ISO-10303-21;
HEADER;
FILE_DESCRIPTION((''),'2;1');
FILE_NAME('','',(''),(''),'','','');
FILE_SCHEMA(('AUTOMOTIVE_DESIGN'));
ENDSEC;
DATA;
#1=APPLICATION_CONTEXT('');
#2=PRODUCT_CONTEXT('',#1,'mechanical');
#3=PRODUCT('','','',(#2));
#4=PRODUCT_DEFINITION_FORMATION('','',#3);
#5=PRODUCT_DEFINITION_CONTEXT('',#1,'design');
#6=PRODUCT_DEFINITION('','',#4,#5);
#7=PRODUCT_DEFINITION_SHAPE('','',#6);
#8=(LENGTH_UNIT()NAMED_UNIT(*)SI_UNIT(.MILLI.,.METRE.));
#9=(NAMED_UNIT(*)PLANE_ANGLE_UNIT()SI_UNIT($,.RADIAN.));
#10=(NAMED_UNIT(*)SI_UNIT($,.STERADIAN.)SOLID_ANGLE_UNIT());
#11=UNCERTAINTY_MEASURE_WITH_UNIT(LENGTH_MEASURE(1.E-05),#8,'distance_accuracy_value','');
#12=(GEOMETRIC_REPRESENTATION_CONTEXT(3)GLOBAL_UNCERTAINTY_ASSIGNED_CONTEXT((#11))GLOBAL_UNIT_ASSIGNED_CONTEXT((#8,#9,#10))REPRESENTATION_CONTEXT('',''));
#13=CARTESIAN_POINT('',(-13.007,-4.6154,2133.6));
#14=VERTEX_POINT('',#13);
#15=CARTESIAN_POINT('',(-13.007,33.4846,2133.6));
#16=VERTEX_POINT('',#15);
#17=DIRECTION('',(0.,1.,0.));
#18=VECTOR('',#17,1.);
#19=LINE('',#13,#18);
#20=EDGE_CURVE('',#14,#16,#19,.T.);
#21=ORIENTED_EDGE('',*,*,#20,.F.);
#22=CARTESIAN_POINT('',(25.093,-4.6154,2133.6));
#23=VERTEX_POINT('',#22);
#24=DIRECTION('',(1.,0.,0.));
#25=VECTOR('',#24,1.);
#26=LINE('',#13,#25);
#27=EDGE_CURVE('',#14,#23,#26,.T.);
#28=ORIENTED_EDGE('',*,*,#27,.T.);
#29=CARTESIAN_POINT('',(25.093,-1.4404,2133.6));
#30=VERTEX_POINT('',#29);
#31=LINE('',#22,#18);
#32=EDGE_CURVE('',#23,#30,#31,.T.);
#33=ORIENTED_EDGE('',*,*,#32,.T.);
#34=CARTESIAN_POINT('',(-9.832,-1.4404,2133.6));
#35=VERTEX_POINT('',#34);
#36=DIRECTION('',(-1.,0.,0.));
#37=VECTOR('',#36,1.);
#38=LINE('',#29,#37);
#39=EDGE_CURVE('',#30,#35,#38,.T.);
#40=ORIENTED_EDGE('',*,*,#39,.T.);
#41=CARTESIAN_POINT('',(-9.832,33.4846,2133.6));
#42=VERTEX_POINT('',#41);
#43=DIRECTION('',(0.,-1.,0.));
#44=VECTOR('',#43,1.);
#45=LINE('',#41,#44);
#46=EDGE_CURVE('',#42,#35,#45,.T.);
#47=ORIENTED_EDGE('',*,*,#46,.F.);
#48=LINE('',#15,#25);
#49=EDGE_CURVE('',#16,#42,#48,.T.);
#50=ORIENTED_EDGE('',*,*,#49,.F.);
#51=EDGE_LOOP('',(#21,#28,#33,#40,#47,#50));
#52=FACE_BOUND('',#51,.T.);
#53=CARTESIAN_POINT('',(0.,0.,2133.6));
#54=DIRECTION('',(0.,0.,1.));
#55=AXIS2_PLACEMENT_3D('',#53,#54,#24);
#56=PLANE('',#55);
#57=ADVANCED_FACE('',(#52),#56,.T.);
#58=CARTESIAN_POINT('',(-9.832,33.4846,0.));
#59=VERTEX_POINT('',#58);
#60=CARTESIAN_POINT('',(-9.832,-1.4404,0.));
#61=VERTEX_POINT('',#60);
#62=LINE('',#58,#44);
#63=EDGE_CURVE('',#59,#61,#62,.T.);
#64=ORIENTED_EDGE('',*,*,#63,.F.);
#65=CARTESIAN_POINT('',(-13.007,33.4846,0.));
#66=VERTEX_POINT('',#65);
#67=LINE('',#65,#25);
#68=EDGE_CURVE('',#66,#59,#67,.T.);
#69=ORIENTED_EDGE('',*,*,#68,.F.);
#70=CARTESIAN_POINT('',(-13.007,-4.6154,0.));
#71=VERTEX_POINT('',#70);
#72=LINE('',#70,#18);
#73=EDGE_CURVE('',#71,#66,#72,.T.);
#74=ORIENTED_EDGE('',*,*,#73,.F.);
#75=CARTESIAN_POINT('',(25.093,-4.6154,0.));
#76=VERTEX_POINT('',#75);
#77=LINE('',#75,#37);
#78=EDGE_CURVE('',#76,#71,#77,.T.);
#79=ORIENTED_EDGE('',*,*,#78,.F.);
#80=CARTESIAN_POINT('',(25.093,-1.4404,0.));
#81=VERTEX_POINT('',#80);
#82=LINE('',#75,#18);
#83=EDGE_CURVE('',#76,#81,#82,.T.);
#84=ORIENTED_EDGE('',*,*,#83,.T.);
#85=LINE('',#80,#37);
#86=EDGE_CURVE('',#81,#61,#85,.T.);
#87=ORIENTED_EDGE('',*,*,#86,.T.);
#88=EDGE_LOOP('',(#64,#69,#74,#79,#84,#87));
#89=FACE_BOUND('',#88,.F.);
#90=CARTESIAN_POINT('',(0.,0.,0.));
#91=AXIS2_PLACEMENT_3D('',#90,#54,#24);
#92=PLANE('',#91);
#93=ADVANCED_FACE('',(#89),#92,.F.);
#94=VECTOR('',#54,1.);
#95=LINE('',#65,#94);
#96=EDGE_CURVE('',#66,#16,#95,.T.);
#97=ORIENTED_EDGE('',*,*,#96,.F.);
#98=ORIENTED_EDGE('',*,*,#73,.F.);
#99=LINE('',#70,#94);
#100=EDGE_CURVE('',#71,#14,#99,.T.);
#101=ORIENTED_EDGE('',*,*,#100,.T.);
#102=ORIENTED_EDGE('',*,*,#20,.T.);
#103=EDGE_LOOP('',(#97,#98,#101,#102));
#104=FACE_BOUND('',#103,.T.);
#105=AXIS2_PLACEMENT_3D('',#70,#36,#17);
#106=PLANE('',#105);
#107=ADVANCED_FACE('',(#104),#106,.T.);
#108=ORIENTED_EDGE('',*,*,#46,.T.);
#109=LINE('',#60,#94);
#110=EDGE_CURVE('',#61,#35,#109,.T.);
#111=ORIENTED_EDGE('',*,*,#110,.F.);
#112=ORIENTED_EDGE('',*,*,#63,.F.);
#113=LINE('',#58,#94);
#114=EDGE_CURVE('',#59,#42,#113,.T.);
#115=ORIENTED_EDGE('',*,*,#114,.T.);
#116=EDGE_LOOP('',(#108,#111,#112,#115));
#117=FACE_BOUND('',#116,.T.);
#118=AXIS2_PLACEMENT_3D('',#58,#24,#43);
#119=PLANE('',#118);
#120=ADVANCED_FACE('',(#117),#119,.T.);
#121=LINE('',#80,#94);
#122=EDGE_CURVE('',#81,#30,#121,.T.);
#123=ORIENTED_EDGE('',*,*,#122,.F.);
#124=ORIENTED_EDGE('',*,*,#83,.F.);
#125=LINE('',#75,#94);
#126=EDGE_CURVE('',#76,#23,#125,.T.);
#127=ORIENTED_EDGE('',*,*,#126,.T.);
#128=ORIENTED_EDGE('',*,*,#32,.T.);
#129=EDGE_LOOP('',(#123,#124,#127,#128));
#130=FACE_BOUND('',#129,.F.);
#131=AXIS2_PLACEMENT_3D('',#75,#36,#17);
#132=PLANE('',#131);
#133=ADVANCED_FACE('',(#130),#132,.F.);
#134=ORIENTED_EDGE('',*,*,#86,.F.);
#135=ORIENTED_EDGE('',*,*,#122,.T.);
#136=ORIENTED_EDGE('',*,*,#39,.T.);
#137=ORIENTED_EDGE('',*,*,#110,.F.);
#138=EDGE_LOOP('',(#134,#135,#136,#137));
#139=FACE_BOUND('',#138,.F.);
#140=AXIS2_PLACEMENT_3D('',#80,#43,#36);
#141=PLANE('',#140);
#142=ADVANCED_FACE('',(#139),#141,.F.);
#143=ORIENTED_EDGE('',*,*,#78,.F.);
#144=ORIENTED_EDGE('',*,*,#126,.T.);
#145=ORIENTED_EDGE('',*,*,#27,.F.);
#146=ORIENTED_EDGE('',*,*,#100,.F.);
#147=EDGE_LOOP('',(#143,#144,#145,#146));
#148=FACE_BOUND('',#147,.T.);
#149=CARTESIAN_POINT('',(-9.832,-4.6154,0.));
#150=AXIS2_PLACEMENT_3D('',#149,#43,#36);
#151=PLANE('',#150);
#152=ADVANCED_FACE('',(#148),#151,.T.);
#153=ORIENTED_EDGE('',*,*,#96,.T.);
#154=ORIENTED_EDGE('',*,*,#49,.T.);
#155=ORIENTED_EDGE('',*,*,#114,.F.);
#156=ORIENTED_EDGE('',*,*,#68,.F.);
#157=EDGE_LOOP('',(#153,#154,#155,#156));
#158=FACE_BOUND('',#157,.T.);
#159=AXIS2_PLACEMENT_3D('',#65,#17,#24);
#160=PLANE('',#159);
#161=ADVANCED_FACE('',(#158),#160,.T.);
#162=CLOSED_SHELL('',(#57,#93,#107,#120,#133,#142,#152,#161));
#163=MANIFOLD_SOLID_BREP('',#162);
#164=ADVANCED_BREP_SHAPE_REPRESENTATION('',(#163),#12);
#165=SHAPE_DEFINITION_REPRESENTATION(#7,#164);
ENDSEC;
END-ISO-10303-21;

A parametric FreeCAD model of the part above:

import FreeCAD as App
import Part
import Sketcher
Q = App.Units.Quantity


def add_polygon(sketch, points):
    """Adds a closed chain of lines whose ends are joined by coincident constraints."""
    first, n = sketch.GeometryCount, len(points)
    for a, b in zip(points, points[1:] + points[:1]):
        sketch.addGeometry(Part.LineSegment(App.Vector(*a, 0), App.Vector(*b, 0)), False)
    for i in range(n):
        sketch.addConstraint(Sketcher.Constraint("Coincident", first + i, 2, first + (i + 1) % n, 1))

doc = App.newDocument("Part")
params = doc.addObject("Spreadsheet::Sheet", "Params")
for row, (alias, value) in enumerate([
    ("sketch1_width", "1.5 in"),
    ("sketch1_width2", "0.125 in"),
    ("pad1_length", "84 in"),
], start=1):
    params.set(f"A{row}", alias)
    params.set(f"B{row}", "=" + value)
    params.setAlias(f"B{row}", alias)

body = doc.addObject("PartDesign::Body", "Body")

# Sketch on XY plane
sketch1 = body.newObject("Sketcher::SketchObject", "Sketch")
sketch1.AttachmentSupport = (doc.getObject("XY_Plane"), [""])
sketch1.MapMode = "FlatFace"
add_polygon(sketch1, [(-9.832, 33.4846), (-13.007, 33.4846), (-13.007, -4.6154), (25.093, -4.6154), (25.093, -1.4404), (-9.832, -1.4404)])  # lines 0-5
sketch1.addConstraint([
    Sketcher.Constraint("Horizontal", 0),
    Sketcher.Constraint("Vertical", 1),
    Sketcher.Constraint("Horizontal", 2),
    Sketcher.Constraint("Vertical", 3),
    Sketcher.Constraint("Horizontal", 4),
    Sketcher.Constraint("Vertical", 5),
    Sketcher.Constraint("Equal", 2, 1),
    Sketcher.Constraint("Equal", 0, 3),
    Sketcher.Constraint("DistanceX", 2, 1, 2, 2, Q("1.5 in")),
    Sketcher.Constraint("DistanceX", 0, 2, 0, 1, Q("0.125 in")),
    Sketcher.Constraint("DistanceY", -1, 1, 0, 2, Q("1.3183 in")),
    Sketcher.Constraint("DistanceX", 0, 2, -1, 1, 13.007),
])
sketch1.setExpression("Constraints[14]", "Params.sketch1_width")
sketch1.setExpression("Constraints[15]", "Params.sketch1_width2")
pad1 = body.newObject("PartDesign::Pad", "Pad")
pad1.Profile = sketch1
pad1.setExpression("Length", "Params.pad1_length")

doc.recompute()
